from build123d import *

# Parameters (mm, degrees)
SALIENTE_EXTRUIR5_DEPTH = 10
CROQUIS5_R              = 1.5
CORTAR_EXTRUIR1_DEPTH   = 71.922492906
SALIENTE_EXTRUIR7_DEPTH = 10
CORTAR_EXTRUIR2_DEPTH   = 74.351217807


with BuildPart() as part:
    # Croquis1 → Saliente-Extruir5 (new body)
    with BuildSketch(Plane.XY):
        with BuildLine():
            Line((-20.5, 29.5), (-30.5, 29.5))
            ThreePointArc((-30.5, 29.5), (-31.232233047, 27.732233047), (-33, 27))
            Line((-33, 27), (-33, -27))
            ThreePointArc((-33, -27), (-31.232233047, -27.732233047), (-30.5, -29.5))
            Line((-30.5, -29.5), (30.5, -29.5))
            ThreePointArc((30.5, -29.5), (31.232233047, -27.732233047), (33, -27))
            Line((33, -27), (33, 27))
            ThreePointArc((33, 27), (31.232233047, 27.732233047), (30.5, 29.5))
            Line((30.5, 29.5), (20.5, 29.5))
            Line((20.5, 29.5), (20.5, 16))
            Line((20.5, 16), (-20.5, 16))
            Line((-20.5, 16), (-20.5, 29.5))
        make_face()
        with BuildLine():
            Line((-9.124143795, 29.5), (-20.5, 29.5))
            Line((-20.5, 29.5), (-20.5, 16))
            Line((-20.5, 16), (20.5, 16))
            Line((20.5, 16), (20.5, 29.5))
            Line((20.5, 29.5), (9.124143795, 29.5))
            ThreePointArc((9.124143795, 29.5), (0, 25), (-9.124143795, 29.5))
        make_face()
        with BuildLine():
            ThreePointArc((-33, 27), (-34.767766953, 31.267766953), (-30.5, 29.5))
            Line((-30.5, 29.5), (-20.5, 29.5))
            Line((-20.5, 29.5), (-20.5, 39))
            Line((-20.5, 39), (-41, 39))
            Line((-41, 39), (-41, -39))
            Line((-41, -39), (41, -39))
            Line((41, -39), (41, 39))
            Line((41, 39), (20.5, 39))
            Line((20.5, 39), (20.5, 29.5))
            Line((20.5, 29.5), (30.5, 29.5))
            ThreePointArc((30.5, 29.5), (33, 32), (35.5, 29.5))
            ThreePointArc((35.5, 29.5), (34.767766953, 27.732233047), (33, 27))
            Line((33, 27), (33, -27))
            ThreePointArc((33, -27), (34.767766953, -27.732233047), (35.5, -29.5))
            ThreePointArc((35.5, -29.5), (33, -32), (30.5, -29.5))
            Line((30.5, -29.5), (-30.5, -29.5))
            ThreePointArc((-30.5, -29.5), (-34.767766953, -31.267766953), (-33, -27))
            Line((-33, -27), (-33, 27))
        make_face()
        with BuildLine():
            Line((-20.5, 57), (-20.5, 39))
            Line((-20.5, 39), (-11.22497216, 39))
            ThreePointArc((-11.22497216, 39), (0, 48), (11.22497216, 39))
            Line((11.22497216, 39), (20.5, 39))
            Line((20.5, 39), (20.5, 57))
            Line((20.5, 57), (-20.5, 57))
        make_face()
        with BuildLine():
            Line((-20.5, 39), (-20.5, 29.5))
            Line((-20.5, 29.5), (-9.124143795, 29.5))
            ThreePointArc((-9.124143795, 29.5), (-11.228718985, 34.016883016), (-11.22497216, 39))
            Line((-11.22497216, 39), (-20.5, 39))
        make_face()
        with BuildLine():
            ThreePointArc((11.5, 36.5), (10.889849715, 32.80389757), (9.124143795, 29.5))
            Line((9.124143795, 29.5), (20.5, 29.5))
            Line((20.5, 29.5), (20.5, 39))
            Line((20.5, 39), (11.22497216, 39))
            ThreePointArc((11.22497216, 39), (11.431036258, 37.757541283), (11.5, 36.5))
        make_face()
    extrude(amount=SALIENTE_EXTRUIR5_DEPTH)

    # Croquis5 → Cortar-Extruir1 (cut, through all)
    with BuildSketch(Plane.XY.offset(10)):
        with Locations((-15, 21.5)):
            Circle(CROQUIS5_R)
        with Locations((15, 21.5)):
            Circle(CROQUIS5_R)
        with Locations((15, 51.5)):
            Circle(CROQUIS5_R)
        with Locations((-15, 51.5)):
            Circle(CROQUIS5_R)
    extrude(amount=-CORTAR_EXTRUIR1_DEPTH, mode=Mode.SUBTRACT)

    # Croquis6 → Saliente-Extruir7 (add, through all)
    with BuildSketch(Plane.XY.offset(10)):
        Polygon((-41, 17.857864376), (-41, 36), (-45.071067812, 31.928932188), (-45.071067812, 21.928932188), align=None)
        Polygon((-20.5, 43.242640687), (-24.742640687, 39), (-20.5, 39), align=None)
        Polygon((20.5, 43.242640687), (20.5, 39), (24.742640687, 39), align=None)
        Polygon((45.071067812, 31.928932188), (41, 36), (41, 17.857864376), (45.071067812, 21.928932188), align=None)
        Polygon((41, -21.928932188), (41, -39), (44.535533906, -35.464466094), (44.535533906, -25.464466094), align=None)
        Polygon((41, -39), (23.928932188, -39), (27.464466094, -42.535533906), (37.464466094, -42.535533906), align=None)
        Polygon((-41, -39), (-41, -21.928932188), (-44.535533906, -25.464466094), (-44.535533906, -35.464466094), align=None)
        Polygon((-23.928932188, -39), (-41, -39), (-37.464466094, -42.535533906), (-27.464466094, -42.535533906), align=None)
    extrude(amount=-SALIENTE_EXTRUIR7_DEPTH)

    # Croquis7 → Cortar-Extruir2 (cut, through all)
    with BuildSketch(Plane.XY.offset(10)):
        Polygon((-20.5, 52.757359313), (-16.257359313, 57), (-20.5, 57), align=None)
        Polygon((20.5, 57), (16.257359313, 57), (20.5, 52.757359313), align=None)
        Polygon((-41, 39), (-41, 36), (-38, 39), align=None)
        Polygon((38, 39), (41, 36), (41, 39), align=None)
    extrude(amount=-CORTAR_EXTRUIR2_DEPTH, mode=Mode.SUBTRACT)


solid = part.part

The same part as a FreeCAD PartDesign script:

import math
import FreeCAD as App
import Part
import Sketcher

V = App.Vector
Q = App.Units.Quantity

doc = App.newDocument("Part")
body = doc.addObject("PartDesign::Body", "Body")

# Sketch on XY plane
sketch1 = body.newObject("Sketcher::SketchObject", "Sketch")
sketch1.AttachmentSupport = (doc.getObject("XY_Plane"), [""])
sketch1.MapMode = "FlatFace"
sketch1.addGeometry([
    Part.LineSegment(V(41, 39, 0), V(20.5, 39, 0)),  # 0
    Part.LineSegment(V(20.5, 39, 0), V(20.5, 57, 0)),  # 1
    Part.LineSegment(V(20.5, 57, 0), V(-20.5, 57, 0)),  # 2
    Part.LineSegment(V(-20.5, 57, 0), V(-20.5, 39, 0)),  # 3
    Part.LineSegment(V(-20.5, 39, 0), V(-41, 39, 0)),  # 4
    Part.LineSegment(V(-41, 39, 0), V(-41, -39, 0)),  # 5
    Part.LineSegment(V(-41, -39, 0), V(41, -39, 0)),  # 6
    Part.LineSegment(V(41, -39, 0), V(41, 39, 0)),  # 7
    Part.ArcOfCircle(Part.Circle(V(-33, -29.5, 0), V(0, 0, 1), 2.5), math.radians(0), math.radians(90)),  # 8
    Part.ArcOfCircle(Part.Circle(V(-33, -29.5, 0), V(0, 0, 1), 2.5), math.radians(90), math.radians(360)),  # 9
    Part.ArcOfCircle(Part.Circle(V(33, -29.5, 0), V(0, 0, 1), 2.5), math.radians(90), math.radians(180)),  # 10
    Part.ArcOfCircle(Part.Circle(V(33, -29.5, 0), V(0, 0, 1), 2.5), math.radians(0), math.radians(90)),  # 11
    Part.ArcOfCircle(Part.Circle(V(33, -29.5, 0), V(0, 0, 1), 2.5), math.radians(180), math.radians(360)),  # 12
    Part.ArcOfCircle(Part.Circle(V(-33, 29.5, 0), V(0, 0, 1), 2.5), math.radians(-90), math.radians(0)),  # 13
    Part.ArcOfCircle(Part.Circle(V(-33, 29.5, 0), V(0, 0, 1), 2.5), math.radians(0), math.radians(270)),  # 14
    Part.ArcOfCircle(Part.Circle(V(0, 36.5, 0), V(0, 0, 1), 11.5), math.radians(13), math.radians(167)),  # 15
    Part.ArcOfCircle(Part.Circle(V(0, 36.5, 0), V(0, 0, 1), 11.5), math.radians(0), math.radians(12.56)),  # 16
    Part.ArcOfCircle(Part.Circle(V(0, 36.5, 0), V(0, 0, 1), 11.5), math.radians(-37), math.radians(0)),  # 17
    Part.ArcOfCircle(Part.Circle(V(0, 36.5, 0), V(0, 0, 1), 11.5), math.radians(-143), math.radians(-37)),  # 18
    Part.ArcOfCircle(Part.Circle(V(0, 36.5, 0), V(0, 0, 1), 11.5), math.radians(167), math.radians(217)),  # 19
    Part.ArcOfCircle(Part.Circle(V(33, 29.5, 0), V(0, 0, 1), 2.5), math.radians(180), math.radians(270)),  # 20
    Part.ArcOfCircle(Part.Circle(V(33, 29.5, 0), V(0, 0, 1), 2.5), math.radians(0), math.radians(180)),  # 21
    Part.ArcOfCircle(Part.Circle(V(33, 29.5, 0), V(0, 0, 1), 2.5), math.radians(-90), math.radians(0)),  # 22
], False)
sketch1.addConstraint([
    Sketcher.Constraint("Coincident", 0, 2, 1, 1),
    Sketcher.Constraint("Coincident", 1, 2, 2, 1),
    Sketcher.Constraint("Coincident", 2, 2, 3, 1),
    Sketcher.Constraint("Coincident", 3, 2, 4, 1),
    Sketcher.Constraint("Coincident", 4, 2, 5, 1),
    Sketcher.Constraint("Coincident", 5, 2, 6, 1),
    Sketcher.Constraint("Coincident", 6, 2, 7, 1),
    Sketcher.Constraint("Coincident", 7, 2, 0, 1),
    Sketcher.Constraint("Tangent", 8, 1, 9, 2),
    Sketcher.Constraint("Coincident", 9, 1, 8, 2),
    Sketcher.Constraint("Tangent", 10, 1, 11, 2),
    Sketcher.Constraint("Tangent", 11, 1, 12, 2),
    Sketcher.Constraint("Tangent", 12, 1, 10, 2),
    Sketcher.Constraint("Tangent", 13, 1, 14, 2),
    Sketcher.Constraint("Coincident", 14, 1, 13, 2),
    Sketcher.Constraint("Tangent", 15, 1, 16, 2),
    Sketcher.Constraint("Tangent", 16, 1, 17, 2),
    Sketcher.Constraint("Tangent", 17, 1, 18, 2),
    Sketcher.Constraint("Tangent", 18, 1, 19, 2),
    Sketcher.Constraint("Tangent", 19, 1, 15, 2),
    Sketcher.Constraint("Tangent", 20, 1, 21, 2),
    Sketcher.Constraint("Tangent", 21, 1, 22, 2),
    Sketcher.Constraint("Tangent", 22, 1, 20, 2),
    Sketcher.Constraint("Horizontal", 0),
    Sketcher.Constraint("Vertical", 1),
    Sketcher.Constraint("Horizontal", 2),
    Sketcher.Constraint("Vertical", 3),
    Sketcher.Constraint("Horizontal", 4),
    Sketcher.Constraint("Vertical", 5),
    Sketcher.Constraint("Horizontal", 6),
    Sketcher.Constraint("Vertical", 7),
    Sketcher.Constraint("Coincident", 17, 3, 15, 3),
    Sketcher.Constraint("Equal", 9, 10),
    Sketcher.Constraint("Equal", 12, 13),
    Sketcher.Constraint("Equal", 14, 20),
    Sketcher.Constraint("Symmetric", 10, 3, 13, 3, -1, 1),
    Sketcher.Constraint("Symmetric", 8, 3, 20, 3, -1, 1),
    Sketcher.Constraint("Symmetric", 4, 2, 6, 2, -1, 1),
    Sketcher.Constraint("Symmetric", 8, 3, 10, 3, -2),
    Sketcher.Constraint("Symmetric", 0, 2, 3, 2, -2),
    Sketcher.Constraint("Symmetric", 17, 1, 18, 1, -2),
    Sketcher.Constraint("Horizontal", 12, 3, 8, 1),
    Sketcher.Constraint("Horizontal", 8, 1, 11, 1),
    Sketcher.Constraint("Horizontal", 11, 1, 12, 1),
    Sketcher.Constraint("Horizontal", 22, 3, 14, 1),
    Sketcher.Constraint("Horizontal", 7, 2, 15, 1),
    Sketcher.Constraint("Horizontal", 19, 3, 16, 1),
    Sketcher.Constraint("Horizontal", 14, 1, 17, 1),
    Sketcher.Constraint("Horizontal", 15, 1, 19, 1),
    Sketcher.Constraint("Horizontal", 18, 1, 20, 1),
    Sketcher.Constraint("Horizontal", 20, 1, 21, 1),
    Sketcher.Constraint("Vertical", 14, 3, 9, 1),
    Sketcher.Constraint("Vertical", 22, 3, 10, 1),
    Sketcher.Constraint("Vertical", 9, 1, 13, 1),
    Sketcher.Constraint("Vertical", 10, 1, 22, 1),
    Sketcher.Constraint("Radius", 8, Q("2.5 mm")),
    Sketcher.Constraint("Radius", 15, Q("11.5 mm")),
    Sketcher.Constraint("DistanceX", 2, 2, 2, 1, Q("41 mm")),
    Sketcher.Constraint("DistanceX", 6, 1, 6, 2, Q("82 mm")),
    Sketcher.Constraint("DistanceY", 1, 1, 1, 2, Q("18 mm")),
    Sketcher.Constraint("DistanceY", 5, 2, 5, 1, Q("78 mm")),
    Sketcher.Constraint("DistanceX", 8, 3, -1, 1, Q("33 mm")),
    Sketcher.Constraint("DistanceY", 9, 1, -1, 1, Q("27 mm")),
    Sketcher.Constraint("DistanceY", 13, 3, 15, 3, Q("7 mm")),
])
pad1 = body.newObject("PartDesign::Pad", "Pad")
pad1.Profile = sketch1
pad1.Length = 10

# Sketch on XY plane
sketch2 = body.newObject("Sketcher::SketchObject", "Sketch001")
sketch2.AttachmentSupport = (doc.getObject("XY_Plane"), [""])
sketch2.MapMode = "FlatFace"
sketch2.AttachmentOffset = App.Placement(V(0, 0, 10), App.Rotation())
sketch2.addGeometry([
    Part.Circle(V(-15, 21.5, 0), V(0, 0, 1), 1.5),
    Part.Circle(V(15, 21.5, 0), V(0, 0, 1), 1.5),
    Part.Circle(V(15, 51.5, 0), V(0, 0, 1), 1.5),
    Part.Circle(V(-15, 51.5, 0), V(0, 0, 1), 1.5),
], False)
sketch2.addConstraint([
    Sketcher.Constraint("Equal", 0, 1),
    Sketcher.Constraint("Equal", 1, 2),
    Sketcher.Constraint("Equal", 2, 3),
    Sketcher.Constraint("Symmetric", 0, 3, 1, 3, -2),
    Sketcher.Constraint("Symmetric", 2, 3, 3, 3, -2),
    Sketcher.Constraint("Vertical", 1, 3, 2, 3),
    Sketcher.Constraint("Diameter", 0, Q("3 mm")),
    Sketcher.Constraint("DistanceX", 0, 3, -1, 1, Q("15 mm")),
    Sketcher.Constraint("DistanceY", 1, 3, 2, 3, Q("30 mm")),
    Sketcher.Constraint("DistanceY", -1, 1, 0, 3, Q("21.5 mm")),
])
pocket1 = body.newObject("PartDesign::Pocket", "Pocket")
pocket1.Profile = sketch2
pocket1.Type = "ThroughAll"

# Sketch on XY plane
sketch3 = body.newObject("Sketcher::SketchObject", "Sketch002")
sketch3.AttachmentSupport = (doc.getObject("XY_Plane"), [""])
sketch3.MapMode = "FlatFace"
sketch3.AttachmentOffset = App.Placement(V(0, 0, 10), App.Rotation())
sketch3.addGeometry([
    Part.LineSegment(V(-41, 17.9, 0), V(-41, 36, 0)),  # 0
    Part.LineSegment(V(-41, 36, 0), V(-45.1, 31.9, 0)),  # 1
    Part.LineSegment(V(-45.1, 31.9, 0), V(-45.1, 21.9, 0)),  # 2
    Part.LineSegment(V(-45.1, 21.9, 0), V(-41, 17.9, 0)),  # 3
    Part.LineSegment(V(-20.5, 43.2, 0), V(-24.7, 39, 0)),  # 4
    Part.LineSegment(V(-24.7, 39, 0), V(-20.5, 39, 0)),  # 5
    Part.LineSegment(V(-20.5, 39, 0), V(-20.5, 43.2, 0)),  # 6
    Part.LineSegment(V(20.5, 43.2, 0), V(20.5, 39, 0)),  # 7
    Part.LineSegment(V(20.5, 39, 0), V(24.7, 39, 0)),  # 8
    Part.LineSegment(V(24.7, 39, 0), V(20.5, 43.2, 0)),  # 9
    Part.LineSegment(V(45.1, 31.9, 0), V(41, 36, 0)),  # 10
    Part.LineSegment(V(41, 36, 0), V(41, 17.9, 0)),  # 11
    Part.LineSegment(V(41, 17.9, 0), V(45.1, 21.9, 0)),  # 12
    Part.LineSegment(V(45.1, 21.9, 0), V(45.1, 31.9, 0)),  # 13
    Part.LineSegment(V(41, -21.9, 0), V(41, -39, 0)),  # 14
    Part.LineSegment(V(41, -39, 0), V(44.5, -35.5, 0)),  # 15
    Part.LineSegment(V(44.5, -35.5, 0), V(44.5, -25.5, 0)),  # 16
    Part.LineSegment(V(44.5, -25.5, 0), V(41, -21.9, 0)),  # 17
    Part.LineSegment(V(41, -39, 0), V(23.9, -39, 0)),  # 18
    Part.LineSegment(V(23.9, -39, 0), V(27.5, -42.5, 0)),  # 19
    Part.LineSegment(V(27.5, -42.5, 0), V(37.5, -42.5, 0)),  # 20
    Part.LineSegment(V(37.5, -42.5, 0), V(41, -39, 0)),  # 21
    Part.LineSegment(V(-41, -39, 0), V(-41, -21.9, 0)),  # 22
    Part.LineSegment(V(-41, -21.9, 0), V(-44.5, -25.5, 0)),  # 23
    Part.LineSegment(V(-44.5, -25.5, 0), V(-44.5, -35.5, 0)),  # 24
    Part.LineSegment(V(-44.5, -35.5, 0), V(-41, -39, 0)),  # 25
    Part.LineSegment(V(-23.9, -39, 0), V(-41, -39, 0)),  # 26
    Part.LineSegment(V(-41, -39, 0), V(-37.5, -42.5, 0)),  # 27
    Part.LineSegment(V(-37.5, -42.5, 0), V(-27.5, -42.5, 0)),  # 28
    Part.LineSegment(V(-27.5, -42.5, 0), V(-23.9, -39, 0)),  # 29
], False)
sketch3.addConstraint([
    Sketcher.Constraint("Coincident", 0, 2, 1, 1),
    Sketcher.Constraint("Coincident", 1, 2, 2, 1),
    Sketcher.Constraint("Coincident", 2, 2, 3, 1),
    Sketcher.Constraint("Coincident", 3, 2, 0, 1),
    Sketcher.Constraint("Coincident", 4, 2, 5, 1),
    Sketcher.Constraint("Coincident", 5, 2, 6, 1),
    Sketcher.Constraint("Coincident", 6, 2, 4, 1),
    Sketcher.Constraint("Coincident", 7, 2, 8, 1),
    Sketcher.Constraint("Coincident", 8, 2, 9, 1),
    Sketcher.Constraint("Coincident", 9, 2, 7, 1),
    Sketcher.Constraint("Coincident", 10, 2, 11, 1),
    Sketcher.Constraint("Coincident", 11, 2, 12, 1),
    Sketcher.Constraint("Coincident", 12, 2, 13, 1),
    Sketcher.Constraint("Coincident", 13, 2, 10, 1),
    Sketcher.Constraint("Coincident", 14, 2, 15, 1),
    Sketcher.Constraint("Coincident", 15, 2, 16, 1),
    Sketcher.Constraint("Coincident", 16, 2, 17, 1),
    Sketcher.Constraint("Coincident", 17, 2, 14, 1),
    Sketcher.Constraint("Coincident", 18, 2, 19, 1),
    Sketcher.Constraint("Coincident", 19, 2, 20, 1),
    Sketcher.Constraint("Coincident", 20, 2, 21, 1),
    Sketcher.Constraint("Coincident", 21, 2, 18, 1),
    Sketcher.Constraint("Coincident", 22, 2, 23, 1),
    Sketcher.Constraint("Coincident", 23, 2, 24, 1),
    Sketcher.Constraint("Coincident", 24, 2, 25, 1),
    Sketcher.Constraint("Coincident", 25, 2, 22, 1),
    Sketcher.Constraint("Coincident", 26, 2, 27, 1),
    Sketcher.Constraint("Coincident", 27, 2, 28, 1),
    Sketcher.Constraint("Coincident", 28, 2, 29, 1),
    Sketcher.Constraint("Coincident", 29, 2, 26, 1),
    Sketcher.Constraint("Vertical", 0),
    Sketcher.Constraint("Vertical", 2),
    Sketcher.Constraint("Horizontal", 5),
    Sketcher.Constraint("Vertical", 6),
    Sketcher.Constraint("Vertical", 7),
    Sketcher.Constraint("Horizontal", 8),
    Sketcher.Constraint("Vertical", 11),
    Sketcher.Constraint("Vertical", 13),
    Sketcher.Constraint("Vertical", 14),
    Sketcher.Constraint("Vertical", 16),
    Sketcher.Constraint("Horizontal", 18),
    Sketcher.Constraint("Horizontal", 20),
    Sketcher.Constraint("Vertical", 22),
    Sketcher.Constraint("Vertical", 24),
    Sketcher.Constraint("Horizontal", 26),
    Sketcher.Constraint("Horizontal", 28),
    Sketcher.Constraint("Coincident", 21, 2, 14, 2),
    Sketcher.Constraint("Coincident", 26, 2, 25, 2),
    Sketcher.Constraint("Symmetric", 5, 2, 7, 2, -2),
    Sketcher.Constraint("Symmetric", 0, 2, 10, 2, -2),
    Sketcher.Constraint("Symmetric", 2, 2, 12, 2, -2),
    Sketcher.Constraint("Symmetric", 17, 2, 22, 2, -2),
    Sketcher.Constraint("Symmetric", 16, 2, 23, 2, -2),
    Sketcher.Constraint("Symmetric", 20, 2, 27, 2, -2),
    Sketcher.Constraint("Symmetric", 18, 2, 29, 2, -2),
    Sketcher.Constraint("Perpendicular", 1, 3),
    Sketcher.Constraint("Perpendicular", 3, 4),
    Sketcher.Constraint("Perpendicular", 4, 9),
    Sketcher.Constraint("Parallel", 9, 10),
    Sketcher.Constraint("Perpendicular", 10, 12),
    Sketcher.Constraint("Parallel", 12, 15),
    Sketcher.Constraint("Perpendicular", 15, 17),
    Sketcher.Constraint("Parallel", 17, 19),
    Sketcher.Constraint("Perpendicular", 19, 21),
    Sketcher.Constraint("Parallel", 21, 23),
    Sketcher.Constraint("Perpendicular", 23, 25),
    Sketcher.Constraint("Perpendicular", 27, 29),
    Sketcher.Constraint("Horizontal", 6, 2, 9, 2),
    Sketcher.Constraint("Vertical", 11, 2, 14, 2),
    Sketcher.Constraint("Equal", 28, 2),
    Sketcher.Constraint("Equal", 26, 14),
    Sketcher.Constraint("Equal", 13, 16),
    Sketcher.Constraint("DistanceX", 20, 1, 20, 2, Q("10 mm")),
    Sketcher.Constraint("Distance", 4, Q("6 mm")),
    Sketcher.Constraint("Distance", 15, Q("5 mm")),
    Sketcher.Constraint("DistanceX", 0, 2, -1, 1, Q("41 mm")),
    Sketcher.Constraint("DistanceY", -1, 1, 0, 2, Q("36 mm")),
    Sketcher.Constraint("DistanceY", -1, 1, 4, 2, Q("39 mm")),
    Sketcher.Constraint("DistanceY", 14, 2, -1, 1, Q("39 mm")),
    Sketcher.Constraint("DistanceX", 5, 2, 7, 2, Q("41 mm")),
    Sketcher.Constraint("DistanceY", 15, 2, 12, 2, Q("57.393398 mm")),
])
pad2 = body.newObject("PartDesign::Pad", "Pad001")
pad2.Profile = sketch3
pad2.Type = "UpToLast"
pad2.Reversed = True

# Sketch on XY plane
sketch4 = body.newObject("Sketcher::SketchObject", "Sketch003")
sketch4.AttachmentSupport = (doc.getObject("XY_Plane"), [""])
sketch4.MapMode = "FlatFace"
sketch4.AttachmentOffset = App.Placement(V(0, 0, 10), App.Rotation())
sketch4.addGeometry([
    Part.LineSegment(V(-20.5, 52.8, 0), V(-16.3, 57, 0)),  # 0
    Part.LineSegment(V(-16.3, 57, 0), V(-20.5, 57, 0)),  # 1
    Part.LineSegment(V(-20.5, 57, 0), V(-20.5, 52.8, 0)),  # 2
    Part.LineSegment(V(20.5, 57, 0), V(16.3, 57, 0)),  # 3
    Part.LineSegment(V(16.3, 57, 0), V(20.5, 52.8, 0)),  # 4
    Part.LineSegment(V(20.5, 52.8, 0), V(20.5, 57, 0)),  # 5
    Part.LineSegment(V(-41, 39, 0), V(-41, 36, 0)),  # 6
    Part.LineSegment(V(-41, 36, 0), V(-38, 39, 0)),  # 7
    Part.LineSegment(V(-38, 39, 0), V(-41, 39, 0)),  # 8
    Part.LineSegment(V(38, 39, 0), V(41, 36, 0)),  # 9
    Part.LineSegment(V(41, 36, 0), V(41, 39, 0)),  # 10
    Part.LineSegment(V(41, 39, 0), V(38, 39, 0)),  # 11
], False)
sketch4.addConstraint([
    Sketcher.Constraint("Coincident", 0, 2, 1, 1),
    Sketcher.Constraint("Coincident", 1, 2, 2, 1),
    Sketcher.Constraint("Coincident", 2, 2, 0, 1),
    Sketcher.Constraint("Coincident", 3, 2, 4, 1),
    Sketcher.Constraint("Coincident", 4, 2, 5, 1),
    Sketcher.Constraint("Coincident", 5, 2, 3, 1),
    Sketcher.Constraint("Coincident", 6, 2, 7, 1),
    Sketcher.Constraint("Coincident", 7, 2, 8, 1),
    Sketcher.Constraint("Coincident", 8, 2, 6, 1),
    Sketcher.Constraint("Coincident", 9, 2, 10, 1),
    Sketcher.Constraint("Coincident", 10, 2, 11, 1),
    Sketcher.Constraint("Coincident", 11, 2, 9, 1),
    Sketcher.Constraint("Horizontal", 1),
    Sketcher.Constraint("Vertical", 2),
    Sketcher.Constraint("Horizontal", 3),
    Sketcher.Constraint("Vertical", 5),
    Sketcher.Constraint("Vertical", 6),
    Sketcher.Constraint("Horizontal", 8),
    Sketcher.Constraint("Vertical", 10),
    Sketcher.Constraint("Horizontal", 11),
    Sketcher.Constraint("Symmetric", 0, 2, 3, 2, -2),
    Sketcher.Constraint("Symmetric", 2, 2, 4, 2, -2),
    Sketcher.Constraint("Symmetric", 6, 2, 9, 2, -2),
    Sketcher.Constraint("Symmetric", 7, 2, 11, 2, -2),
    Sketcher.Constraint("Perpendicular", 0, 4),
    Sketcher.Constraint("Perpendicular", 4, 7),
    Sketcher.Constraint("DistanceX", 8, 2, 8, 1, Q("3 mm")),
    Sketcher.Constraint("Distance", 0, Q("6 mm")),
    Sketcher.Constraint("DistanceY", -1, 1, 0, 2, Q("57 mm")),
    Sketcher.Constraint("DistanceX", 6, 2, -1, 1, Q("41 mm")),
    Sketcher.Constraint("DistanceY", -1, 1, 6, 2, Q("36 mm")),
    Sketcher.Constraint("DistanceX", 2, 2, 4, 2, Q("41 mm")),
])
pocket2 = body.newObject("PartDesign::Pocket", "Pocket001")
pocket2.Profile = sketch4
pocket2.Type = "ThroughAll"

doc.recompute()
